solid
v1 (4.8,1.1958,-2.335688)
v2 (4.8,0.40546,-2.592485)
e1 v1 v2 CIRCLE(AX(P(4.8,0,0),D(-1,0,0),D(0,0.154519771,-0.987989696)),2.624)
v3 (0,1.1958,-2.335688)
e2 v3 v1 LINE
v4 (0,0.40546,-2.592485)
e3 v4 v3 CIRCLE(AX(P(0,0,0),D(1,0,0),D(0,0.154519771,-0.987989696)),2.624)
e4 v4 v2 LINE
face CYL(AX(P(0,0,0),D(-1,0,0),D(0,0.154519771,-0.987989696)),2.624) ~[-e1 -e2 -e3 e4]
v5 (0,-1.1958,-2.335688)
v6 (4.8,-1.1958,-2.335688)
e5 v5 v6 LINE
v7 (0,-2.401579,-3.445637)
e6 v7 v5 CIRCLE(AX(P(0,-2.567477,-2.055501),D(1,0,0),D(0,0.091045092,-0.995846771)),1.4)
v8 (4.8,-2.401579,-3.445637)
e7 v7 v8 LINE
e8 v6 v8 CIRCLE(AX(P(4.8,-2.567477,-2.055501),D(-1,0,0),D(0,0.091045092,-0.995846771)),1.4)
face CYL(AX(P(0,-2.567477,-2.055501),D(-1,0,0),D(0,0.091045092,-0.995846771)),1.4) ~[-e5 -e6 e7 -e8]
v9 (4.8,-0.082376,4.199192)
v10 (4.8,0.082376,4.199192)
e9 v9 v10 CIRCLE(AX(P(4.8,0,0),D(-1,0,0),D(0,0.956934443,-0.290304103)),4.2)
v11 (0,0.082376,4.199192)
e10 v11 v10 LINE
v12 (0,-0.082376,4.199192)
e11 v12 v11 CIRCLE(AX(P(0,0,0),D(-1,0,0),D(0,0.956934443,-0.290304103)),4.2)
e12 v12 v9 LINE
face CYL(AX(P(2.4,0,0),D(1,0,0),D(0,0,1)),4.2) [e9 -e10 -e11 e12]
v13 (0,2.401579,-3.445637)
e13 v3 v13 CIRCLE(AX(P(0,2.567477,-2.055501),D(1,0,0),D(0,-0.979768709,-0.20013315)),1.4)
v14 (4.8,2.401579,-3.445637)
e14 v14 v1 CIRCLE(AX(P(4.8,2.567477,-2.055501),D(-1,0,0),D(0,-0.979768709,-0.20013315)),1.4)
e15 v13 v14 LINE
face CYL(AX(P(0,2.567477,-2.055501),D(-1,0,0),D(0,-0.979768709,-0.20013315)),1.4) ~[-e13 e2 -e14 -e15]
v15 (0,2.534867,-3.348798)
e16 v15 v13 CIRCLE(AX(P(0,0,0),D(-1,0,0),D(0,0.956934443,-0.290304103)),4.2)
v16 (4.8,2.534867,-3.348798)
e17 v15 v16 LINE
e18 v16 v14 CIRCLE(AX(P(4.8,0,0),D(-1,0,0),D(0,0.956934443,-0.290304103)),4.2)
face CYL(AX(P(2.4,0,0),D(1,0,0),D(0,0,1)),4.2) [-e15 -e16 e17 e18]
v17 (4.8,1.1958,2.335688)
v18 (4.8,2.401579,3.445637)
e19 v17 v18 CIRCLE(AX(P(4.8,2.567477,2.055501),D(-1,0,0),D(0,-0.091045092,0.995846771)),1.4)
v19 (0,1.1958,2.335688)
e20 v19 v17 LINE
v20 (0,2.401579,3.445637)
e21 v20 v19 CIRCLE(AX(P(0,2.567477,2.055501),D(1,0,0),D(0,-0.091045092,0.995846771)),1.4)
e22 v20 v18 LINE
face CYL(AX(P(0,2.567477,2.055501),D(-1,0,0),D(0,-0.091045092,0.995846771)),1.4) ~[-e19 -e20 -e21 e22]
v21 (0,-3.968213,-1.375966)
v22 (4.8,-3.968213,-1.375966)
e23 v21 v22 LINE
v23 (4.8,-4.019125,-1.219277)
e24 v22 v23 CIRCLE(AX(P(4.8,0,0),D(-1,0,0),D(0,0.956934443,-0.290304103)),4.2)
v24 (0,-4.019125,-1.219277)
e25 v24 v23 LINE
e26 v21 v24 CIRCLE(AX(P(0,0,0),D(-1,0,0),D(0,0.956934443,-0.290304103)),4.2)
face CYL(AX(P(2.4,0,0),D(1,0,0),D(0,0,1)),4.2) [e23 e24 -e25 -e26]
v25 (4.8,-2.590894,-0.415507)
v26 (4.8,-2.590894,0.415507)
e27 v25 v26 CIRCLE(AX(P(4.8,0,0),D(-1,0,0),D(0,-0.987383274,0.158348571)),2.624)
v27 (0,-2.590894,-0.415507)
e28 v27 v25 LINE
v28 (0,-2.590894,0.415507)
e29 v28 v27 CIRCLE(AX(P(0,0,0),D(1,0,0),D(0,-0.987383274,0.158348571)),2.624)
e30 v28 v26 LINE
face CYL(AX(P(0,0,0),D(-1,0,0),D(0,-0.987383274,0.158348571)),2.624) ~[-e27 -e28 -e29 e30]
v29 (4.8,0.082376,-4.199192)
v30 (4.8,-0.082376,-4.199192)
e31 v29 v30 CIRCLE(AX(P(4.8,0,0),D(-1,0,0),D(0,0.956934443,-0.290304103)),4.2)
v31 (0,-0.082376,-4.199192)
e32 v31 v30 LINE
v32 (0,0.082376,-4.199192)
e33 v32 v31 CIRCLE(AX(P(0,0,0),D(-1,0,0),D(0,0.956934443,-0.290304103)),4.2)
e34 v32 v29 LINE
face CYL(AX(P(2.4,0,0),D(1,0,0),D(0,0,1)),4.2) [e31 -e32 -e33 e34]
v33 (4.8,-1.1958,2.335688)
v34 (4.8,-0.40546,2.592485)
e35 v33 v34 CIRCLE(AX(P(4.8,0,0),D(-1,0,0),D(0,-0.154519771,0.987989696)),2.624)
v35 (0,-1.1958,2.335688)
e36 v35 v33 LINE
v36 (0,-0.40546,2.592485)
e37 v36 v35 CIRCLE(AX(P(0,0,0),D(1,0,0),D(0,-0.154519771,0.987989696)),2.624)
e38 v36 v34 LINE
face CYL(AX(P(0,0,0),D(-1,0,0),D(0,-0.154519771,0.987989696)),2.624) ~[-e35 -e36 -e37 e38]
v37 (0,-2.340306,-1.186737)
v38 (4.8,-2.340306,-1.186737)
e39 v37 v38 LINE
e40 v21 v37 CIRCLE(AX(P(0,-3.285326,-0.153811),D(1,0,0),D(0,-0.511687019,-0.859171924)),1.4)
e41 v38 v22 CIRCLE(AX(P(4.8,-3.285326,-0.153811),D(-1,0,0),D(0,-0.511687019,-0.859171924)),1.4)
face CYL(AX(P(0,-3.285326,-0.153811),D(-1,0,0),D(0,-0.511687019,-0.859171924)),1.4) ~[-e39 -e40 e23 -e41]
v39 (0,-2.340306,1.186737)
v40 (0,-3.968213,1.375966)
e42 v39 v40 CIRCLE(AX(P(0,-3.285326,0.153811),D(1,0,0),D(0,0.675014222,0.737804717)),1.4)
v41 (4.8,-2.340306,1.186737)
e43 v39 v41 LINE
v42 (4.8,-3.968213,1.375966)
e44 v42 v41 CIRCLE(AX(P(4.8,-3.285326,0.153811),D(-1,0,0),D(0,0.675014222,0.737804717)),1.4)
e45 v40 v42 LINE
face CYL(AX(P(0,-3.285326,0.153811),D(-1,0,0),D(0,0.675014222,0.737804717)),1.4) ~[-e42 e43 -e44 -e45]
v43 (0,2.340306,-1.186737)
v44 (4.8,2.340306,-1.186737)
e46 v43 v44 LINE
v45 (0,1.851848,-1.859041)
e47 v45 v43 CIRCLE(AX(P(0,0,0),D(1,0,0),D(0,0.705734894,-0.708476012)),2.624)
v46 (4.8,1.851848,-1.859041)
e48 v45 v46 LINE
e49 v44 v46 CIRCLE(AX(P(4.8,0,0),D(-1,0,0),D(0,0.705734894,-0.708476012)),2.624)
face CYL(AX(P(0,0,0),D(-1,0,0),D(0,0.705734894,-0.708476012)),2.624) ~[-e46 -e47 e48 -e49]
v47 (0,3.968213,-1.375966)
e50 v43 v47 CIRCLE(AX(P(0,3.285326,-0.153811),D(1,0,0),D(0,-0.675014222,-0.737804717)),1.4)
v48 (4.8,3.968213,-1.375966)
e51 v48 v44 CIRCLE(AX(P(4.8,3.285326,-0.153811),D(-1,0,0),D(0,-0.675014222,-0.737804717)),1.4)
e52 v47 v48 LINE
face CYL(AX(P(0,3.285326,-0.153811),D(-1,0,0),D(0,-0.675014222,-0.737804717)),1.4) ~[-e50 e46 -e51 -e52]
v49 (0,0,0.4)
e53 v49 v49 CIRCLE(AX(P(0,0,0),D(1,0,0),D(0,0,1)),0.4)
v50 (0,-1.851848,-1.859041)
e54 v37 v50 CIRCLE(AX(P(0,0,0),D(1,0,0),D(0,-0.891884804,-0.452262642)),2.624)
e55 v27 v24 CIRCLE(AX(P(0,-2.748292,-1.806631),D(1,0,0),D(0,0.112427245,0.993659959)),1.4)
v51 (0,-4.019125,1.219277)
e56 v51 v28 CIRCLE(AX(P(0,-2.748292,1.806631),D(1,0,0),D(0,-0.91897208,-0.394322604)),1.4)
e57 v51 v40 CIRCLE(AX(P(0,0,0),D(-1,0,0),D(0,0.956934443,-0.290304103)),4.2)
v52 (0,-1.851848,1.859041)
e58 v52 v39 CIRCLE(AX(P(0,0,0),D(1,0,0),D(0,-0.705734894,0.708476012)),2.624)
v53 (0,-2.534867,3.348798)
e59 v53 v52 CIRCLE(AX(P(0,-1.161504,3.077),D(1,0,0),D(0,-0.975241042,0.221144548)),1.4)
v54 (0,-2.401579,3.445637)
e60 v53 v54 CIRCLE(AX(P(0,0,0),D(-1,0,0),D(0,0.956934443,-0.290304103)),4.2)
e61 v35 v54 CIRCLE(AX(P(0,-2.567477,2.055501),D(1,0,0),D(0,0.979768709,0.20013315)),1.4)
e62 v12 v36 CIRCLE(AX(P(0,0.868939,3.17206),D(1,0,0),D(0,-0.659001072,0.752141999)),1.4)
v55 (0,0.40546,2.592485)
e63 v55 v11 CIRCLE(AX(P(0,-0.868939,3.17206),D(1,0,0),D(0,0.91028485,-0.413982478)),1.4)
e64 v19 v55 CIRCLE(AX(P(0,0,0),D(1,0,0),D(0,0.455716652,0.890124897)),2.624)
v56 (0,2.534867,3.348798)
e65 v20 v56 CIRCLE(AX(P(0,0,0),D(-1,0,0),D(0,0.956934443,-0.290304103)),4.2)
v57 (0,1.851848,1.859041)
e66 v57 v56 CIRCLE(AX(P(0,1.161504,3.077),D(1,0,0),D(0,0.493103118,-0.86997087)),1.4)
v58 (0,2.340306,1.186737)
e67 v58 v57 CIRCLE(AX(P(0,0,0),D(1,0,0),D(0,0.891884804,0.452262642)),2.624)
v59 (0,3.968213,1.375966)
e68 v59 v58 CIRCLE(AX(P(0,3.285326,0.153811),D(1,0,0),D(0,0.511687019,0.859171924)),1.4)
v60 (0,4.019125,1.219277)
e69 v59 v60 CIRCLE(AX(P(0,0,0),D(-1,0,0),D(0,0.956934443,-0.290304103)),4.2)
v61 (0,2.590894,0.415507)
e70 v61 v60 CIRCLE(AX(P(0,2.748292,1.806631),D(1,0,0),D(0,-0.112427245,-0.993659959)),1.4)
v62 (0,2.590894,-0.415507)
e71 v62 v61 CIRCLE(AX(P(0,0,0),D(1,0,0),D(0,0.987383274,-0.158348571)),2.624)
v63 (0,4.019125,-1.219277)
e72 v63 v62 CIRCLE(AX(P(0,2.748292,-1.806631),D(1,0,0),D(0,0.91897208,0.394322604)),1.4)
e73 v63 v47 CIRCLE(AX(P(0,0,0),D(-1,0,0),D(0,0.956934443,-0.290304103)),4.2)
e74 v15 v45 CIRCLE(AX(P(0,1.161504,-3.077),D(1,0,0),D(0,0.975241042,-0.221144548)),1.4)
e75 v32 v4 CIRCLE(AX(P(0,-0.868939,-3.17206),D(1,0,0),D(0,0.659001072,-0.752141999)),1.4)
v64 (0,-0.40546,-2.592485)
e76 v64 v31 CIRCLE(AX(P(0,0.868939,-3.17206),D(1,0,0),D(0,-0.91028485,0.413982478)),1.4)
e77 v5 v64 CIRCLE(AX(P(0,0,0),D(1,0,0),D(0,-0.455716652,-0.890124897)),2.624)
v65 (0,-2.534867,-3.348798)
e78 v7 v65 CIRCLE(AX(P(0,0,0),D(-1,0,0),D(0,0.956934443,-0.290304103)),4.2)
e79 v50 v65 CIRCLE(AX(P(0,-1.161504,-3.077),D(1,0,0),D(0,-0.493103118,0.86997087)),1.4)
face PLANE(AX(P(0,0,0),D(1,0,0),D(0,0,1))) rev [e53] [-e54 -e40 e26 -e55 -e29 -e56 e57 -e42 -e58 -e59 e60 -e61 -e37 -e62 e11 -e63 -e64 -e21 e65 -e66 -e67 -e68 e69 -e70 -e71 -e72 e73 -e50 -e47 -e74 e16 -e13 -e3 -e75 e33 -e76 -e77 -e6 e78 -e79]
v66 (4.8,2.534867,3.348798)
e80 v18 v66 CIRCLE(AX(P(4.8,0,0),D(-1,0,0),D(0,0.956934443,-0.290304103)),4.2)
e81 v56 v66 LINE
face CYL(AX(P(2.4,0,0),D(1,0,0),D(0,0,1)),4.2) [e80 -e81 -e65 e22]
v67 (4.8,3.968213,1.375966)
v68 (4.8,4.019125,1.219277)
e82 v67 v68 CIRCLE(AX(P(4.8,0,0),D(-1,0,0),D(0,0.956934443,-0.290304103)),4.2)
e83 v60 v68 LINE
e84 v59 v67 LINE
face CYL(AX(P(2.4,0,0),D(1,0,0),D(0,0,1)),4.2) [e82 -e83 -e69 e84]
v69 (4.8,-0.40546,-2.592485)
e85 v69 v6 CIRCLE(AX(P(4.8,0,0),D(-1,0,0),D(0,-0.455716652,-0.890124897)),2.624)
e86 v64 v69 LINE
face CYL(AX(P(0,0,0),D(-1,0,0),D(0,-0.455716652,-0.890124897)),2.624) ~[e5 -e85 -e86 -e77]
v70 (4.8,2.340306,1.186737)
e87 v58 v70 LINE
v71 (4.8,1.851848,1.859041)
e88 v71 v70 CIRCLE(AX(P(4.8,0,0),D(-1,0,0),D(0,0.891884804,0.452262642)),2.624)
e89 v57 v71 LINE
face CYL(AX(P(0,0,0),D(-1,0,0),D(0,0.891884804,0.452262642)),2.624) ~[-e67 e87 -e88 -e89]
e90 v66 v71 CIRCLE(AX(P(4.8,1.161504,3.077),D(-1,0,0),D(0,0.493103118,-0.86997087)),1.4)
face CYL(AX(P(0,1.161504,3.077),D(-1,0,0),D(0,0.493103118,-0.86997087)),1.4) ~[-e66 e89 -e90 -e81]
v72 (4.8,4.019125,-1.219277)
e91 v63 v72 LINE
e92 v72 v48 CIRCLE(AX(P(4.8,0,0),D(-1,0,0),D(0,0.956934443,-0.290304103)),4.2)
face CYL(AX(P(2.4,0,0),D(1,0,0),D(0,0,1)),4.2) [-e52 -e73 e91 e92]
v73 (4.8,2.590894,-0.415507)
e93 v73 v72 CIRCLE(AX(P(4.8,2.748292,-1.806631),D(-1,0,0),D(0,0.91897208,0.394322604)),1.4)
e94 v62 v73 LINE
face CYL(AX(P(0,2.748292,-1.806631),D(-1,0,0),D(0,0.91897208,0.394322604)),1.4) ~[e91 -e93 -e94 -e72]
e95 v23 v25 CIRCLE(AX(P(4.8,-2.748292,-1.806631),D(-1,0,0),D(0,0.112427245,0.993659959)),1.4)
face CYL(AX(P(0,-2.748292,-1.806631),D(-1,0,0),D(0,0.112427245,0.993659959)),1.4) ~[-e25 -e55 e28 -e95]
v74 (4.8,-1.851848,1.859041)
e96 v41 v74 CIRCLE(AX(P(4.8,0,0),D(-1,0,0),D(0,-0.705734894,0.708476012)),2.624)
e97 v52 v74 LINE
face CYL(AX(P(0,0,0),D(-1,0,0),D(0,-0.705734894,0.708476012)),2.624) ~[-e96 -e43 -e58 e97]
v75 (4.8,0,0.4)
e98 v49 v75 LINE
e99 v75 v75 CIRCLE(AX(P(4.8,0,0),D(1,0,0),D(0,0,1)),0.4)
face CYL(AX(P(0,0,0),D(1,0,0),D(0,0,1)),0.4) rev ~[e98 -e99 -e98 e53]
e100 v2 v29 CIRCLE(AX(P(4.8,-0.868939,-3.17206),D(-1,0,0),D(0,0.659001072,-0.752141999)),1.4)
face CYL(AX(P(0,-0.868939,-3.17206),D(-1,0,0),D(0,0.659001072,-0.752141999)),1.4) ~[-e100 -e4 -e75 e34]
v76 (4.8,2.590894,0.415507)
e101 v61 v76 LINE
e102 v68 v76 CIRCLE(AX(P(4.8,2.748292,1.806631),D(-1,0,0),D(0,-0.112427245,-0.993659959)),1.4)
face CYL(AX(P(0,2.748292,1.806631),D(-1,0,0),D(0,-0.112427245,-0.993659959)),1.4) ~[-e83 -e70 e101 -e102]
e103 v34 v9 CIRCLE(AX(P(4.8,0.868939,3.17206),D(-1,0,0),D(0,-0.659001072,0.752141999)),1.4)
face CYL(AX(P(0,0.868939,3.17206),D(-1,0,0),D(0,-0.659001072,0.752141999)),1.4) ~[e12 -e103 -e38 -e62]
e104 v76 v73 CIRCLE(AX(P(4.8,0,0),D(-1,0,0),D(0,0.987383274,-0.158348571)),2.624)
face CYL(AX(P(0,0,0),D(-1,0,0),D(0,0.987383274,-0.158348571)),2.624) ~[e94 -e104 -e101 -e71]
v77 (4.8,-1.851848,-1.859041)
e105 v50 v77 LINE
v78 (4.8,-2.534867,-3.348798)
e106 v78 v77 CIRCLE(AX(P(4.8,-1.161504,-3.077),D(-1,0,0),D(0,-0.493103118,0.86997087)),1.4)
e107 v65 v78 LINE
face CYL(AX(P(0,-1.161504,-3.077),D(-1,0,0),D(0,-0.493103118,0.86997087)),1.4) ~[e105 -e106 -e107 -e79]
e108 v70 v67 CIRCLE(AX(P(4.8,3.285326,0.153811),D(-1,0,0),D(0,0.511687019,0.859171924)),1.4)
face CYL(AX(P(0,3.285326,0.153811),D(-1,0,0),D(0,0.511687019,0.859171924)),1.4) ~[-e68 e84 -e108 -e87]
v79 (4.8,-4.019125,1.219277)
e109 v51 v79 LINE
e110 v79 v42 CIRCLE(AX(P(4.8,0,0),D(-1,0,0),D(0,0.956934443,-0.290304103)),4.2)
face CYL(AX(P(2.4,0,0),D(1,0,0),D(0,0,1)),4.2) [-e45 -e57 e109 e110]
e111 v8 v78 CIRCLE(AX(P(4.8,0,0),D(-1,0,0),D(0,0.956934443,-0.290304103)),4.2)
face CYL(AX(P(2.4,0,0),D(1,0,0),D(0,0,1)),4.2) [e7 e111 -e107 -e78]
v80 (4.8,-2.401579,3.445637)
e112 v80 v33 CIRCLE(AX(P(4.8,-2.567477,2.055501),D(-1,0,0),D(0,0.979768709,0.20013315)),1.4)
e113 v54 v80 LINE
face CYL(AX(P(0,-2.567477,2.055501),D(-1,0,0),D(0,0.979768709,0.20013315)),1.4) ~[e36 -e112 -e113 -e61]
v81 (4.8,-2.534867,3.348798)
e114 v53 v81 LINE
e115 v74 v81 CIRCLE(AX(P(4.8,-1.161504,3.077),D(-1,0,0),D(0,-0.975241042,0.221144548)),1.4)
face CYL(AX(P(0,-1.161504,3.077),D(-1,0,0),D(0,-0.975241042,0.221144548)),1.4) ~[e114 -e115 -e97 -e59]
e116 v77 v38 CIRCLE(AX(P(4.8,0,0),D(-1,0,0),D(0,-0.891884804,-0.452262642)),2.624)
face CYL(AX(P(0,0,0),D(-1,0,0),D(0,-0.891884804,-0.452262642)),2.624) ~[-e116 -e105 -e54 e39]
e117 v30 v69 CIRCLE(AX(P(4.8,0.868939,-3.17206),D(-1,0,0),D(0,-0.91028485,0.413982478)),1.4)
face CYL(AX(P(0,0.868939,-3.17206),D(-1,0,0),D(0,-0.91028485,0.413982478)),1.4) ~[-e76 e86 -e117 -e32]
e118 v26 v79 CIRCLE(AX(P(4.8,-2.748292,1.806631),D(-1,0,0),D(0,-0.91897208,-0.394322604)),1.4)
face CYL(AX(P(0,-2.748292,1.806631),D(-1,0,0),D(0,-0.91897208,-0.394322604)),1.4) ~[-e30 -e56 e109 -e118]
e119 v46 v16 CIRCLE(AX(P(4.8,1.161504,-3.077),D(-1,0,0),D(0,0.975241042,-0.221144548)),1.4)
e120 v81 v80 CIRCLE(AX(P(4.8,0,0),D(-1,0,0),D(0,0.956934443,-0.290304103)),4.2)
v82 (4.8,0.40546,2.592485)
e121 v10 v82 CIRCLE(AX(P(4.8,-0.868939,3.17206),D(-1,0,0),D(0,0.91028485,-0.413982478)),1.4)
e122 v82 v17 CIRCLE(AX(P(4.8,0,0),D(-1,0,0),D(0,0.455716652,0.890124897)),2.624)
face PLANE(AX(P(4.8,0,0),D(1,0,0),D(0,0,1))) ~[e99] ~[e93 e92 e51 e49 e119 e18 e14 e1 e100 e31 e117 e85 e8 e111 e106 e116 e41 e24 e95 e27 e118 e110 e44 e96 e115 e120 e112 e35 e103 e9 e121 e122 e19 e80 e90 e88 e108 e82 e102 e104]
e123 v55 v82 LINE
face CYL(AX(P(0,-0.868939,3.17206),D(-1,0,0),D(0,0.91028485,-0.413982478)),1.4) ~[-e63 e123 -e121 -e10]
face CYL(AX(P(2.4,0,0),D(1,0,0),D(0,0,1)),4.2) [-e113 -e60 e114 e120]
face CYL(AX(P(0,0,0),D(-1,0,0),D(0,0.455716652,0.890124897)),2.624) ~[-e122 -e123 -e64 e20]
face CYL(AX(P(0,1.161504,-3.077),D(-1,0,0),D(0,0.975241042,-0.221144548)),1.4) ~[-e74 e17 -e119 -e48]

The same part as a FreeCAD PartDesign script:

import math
import FreeCAD as App
import Part
import Sketcher
from FreeCAD import Vector


def add_polygon(sketch, points):
    """Adds a closed chain of lines whose ends are joined by coincident constraints."""
    first, n = sketch.GeometryCount, len(points)
    for a, b in zip(points, points[1:] + points[:1]):
        sketch.addGeometry(Part.LineSegment(App.Vector(*a, 0), App.Vector(*b, 0)), False)
    for i in range(n):
        sketch.addConstraint(Sketcher.Constraint("Coincident", first + i, 2, first + (i + 1) % n, 1))

doc = App.newDocument("Part")
body = doc.addObject("PartDesign::Body", "Body")

# Sketch on XZ plane
sketch1 = doc.addObject("Sketcher::SketchObject", "Sketch")
body.addObject(sketch1)
sketch1.AttachmentSupport = (doc.XZ_Plane, [""])
sketch1.MapMode = "FlatFace"
add_polygon(sketch1, [(0, -4.2), (0, 0), (4.8, 0), (4.8, -4.2)])  # lines 0-3
sketch1.addConstraint([
    Sketcher.Constraint("Vertical", 0),
    Sketcher.Constraint("Horizontal", 1),
    Sketcher.Constraint("Vertical", 2),
    Sketcher.Constraint("Horizontal", 3),
    Sketcher.Constraint("Coincident", 0, 2, -1, 1),
    Sketcher.Constraint("DistanceX", 1, 1, 1, 2, 4.8),
    Sketcher.Constraint("DistanceY", 0, 1, 0, 2, 4.2),
])
revolution = doc.addObject("PartDesign::Revolution", "Revolution")
body.addObject(revolution)
revolution.Profile = sketch1
revolution.ReferenceAxis = (sketch1, ["H_Axis"])
revolution.Angle = 360

# Sketch on YZ plane
sketch2 = doc.addObject("Sketcher::SketchObject", "Sketch001")
body.addObject(sketch2)
sketch2.AttachmentSupport = (doc.YZ_Plane, [""])
sketch2.MapMode = "FlatFace"
sketch2.addGeometry([
    Part.ArcOfCircle(Part.Circle(Vector(0, 0, 0), Vector(0, 0, 1), 2.6), math.radians(-9.11), math.radians(9.11)),
    Part.ArcOfCircle(Part.Circle(Vector(2.7, -1.8, 0), Vector(0, 0, 1), 1.4), math.radians(23), math.radians(96)),
    Part.ArcOfCircle(Part.Circle(Vector(0, 0, 0), Vector(0, 0, 1), 4.2), math.radians(-17), math.radians(17)),
    Part.ArcOfCircle(Part.Circle(Vector(2.7, 1.8, 0), Vector(0, 0, 1), 1.4), math.radians(-96), math.radians(-23)),
], False)
sketch2.addConstraint([
    Sketcher.Constraint("Coincident", 0, 1, 1, 2),
    Sketcher.Constraint("Coincident", 1, 1, 2, 1),
    Sketcher.Constraint("Coincident", 2, 2, 3, 2),
    Sketcher.Constraint("Coincident", 3, 1, 0, 2),
    Sketcher.Constraint("Coincident", 0, 3, -1, 1),
    Sketcher.Constraint("Coincident", 2, 3, -1, 1),
    Sketcher.Constraint("Equal", 1, 3),
    Sketcher.Constraint("Symmetric", 1, 3, 3, 3, -1),
    Sketcher.Constraint("Radius", 1, 1.4),
    Sketcher.Constraint("Radius", 0, 2.624),
    Sketcher.Constraint("Radius", 2, 4.2254),
    Sketcher.Constraint("DistanceX", 0, 1, 1, 3, 0.157398),
    Sketcher.Constraint("DistanceX", -1, 1, 1, 3, 2.748292),
])
pocket1 = doc.addObject("PartDesign::Pocket", "Pocket")
body.addObject(pocket1)
pocket1.Profile = sketch2
pocket1.Type = "ThroughAll"
pocket1.Reversed = True
doc.recompute()

polarpattern = doc.addObject("PartDesign::PolarPattern", "PolarPattern")
body.addObject(polarpattern)
polarpattern.Originals = [pocket1]
polarpattern.Axis = (doc.X_Axis, [""])
polarpattern.Angle = 360
polarpattern.Occurrences = 10
body.Tip = polarpattern

# Sketch on YZ plane
sketch3 = doc.addObject("Sketcher::SketchObject", "Sketch002")
body.addObject(sketch3)
sketch3.AttachmentSupport = (doc.YZ_Plane, [""])
sketch3.MapMode = "FlatFace"
sketch3.addGeometry(Part.Circle(Vector(0, 0, 0), Vector(0, 0, 1), 0.4), False)
sketch3.addConstraint([
    Sketcher.Constraint("Coincident", 0, 3, -1, 1),
    Sketcher.Constraint("Diameter", 0, 0.8),
])
pocket2 = doc.addObject("PartDesign::Pocket", "Pocket001")
body.addObject(pocket2)
pocket2.Profile = sketch3
pocket2.Length = 100.000102
pocket2.Midplane = True

doc.recompute()
